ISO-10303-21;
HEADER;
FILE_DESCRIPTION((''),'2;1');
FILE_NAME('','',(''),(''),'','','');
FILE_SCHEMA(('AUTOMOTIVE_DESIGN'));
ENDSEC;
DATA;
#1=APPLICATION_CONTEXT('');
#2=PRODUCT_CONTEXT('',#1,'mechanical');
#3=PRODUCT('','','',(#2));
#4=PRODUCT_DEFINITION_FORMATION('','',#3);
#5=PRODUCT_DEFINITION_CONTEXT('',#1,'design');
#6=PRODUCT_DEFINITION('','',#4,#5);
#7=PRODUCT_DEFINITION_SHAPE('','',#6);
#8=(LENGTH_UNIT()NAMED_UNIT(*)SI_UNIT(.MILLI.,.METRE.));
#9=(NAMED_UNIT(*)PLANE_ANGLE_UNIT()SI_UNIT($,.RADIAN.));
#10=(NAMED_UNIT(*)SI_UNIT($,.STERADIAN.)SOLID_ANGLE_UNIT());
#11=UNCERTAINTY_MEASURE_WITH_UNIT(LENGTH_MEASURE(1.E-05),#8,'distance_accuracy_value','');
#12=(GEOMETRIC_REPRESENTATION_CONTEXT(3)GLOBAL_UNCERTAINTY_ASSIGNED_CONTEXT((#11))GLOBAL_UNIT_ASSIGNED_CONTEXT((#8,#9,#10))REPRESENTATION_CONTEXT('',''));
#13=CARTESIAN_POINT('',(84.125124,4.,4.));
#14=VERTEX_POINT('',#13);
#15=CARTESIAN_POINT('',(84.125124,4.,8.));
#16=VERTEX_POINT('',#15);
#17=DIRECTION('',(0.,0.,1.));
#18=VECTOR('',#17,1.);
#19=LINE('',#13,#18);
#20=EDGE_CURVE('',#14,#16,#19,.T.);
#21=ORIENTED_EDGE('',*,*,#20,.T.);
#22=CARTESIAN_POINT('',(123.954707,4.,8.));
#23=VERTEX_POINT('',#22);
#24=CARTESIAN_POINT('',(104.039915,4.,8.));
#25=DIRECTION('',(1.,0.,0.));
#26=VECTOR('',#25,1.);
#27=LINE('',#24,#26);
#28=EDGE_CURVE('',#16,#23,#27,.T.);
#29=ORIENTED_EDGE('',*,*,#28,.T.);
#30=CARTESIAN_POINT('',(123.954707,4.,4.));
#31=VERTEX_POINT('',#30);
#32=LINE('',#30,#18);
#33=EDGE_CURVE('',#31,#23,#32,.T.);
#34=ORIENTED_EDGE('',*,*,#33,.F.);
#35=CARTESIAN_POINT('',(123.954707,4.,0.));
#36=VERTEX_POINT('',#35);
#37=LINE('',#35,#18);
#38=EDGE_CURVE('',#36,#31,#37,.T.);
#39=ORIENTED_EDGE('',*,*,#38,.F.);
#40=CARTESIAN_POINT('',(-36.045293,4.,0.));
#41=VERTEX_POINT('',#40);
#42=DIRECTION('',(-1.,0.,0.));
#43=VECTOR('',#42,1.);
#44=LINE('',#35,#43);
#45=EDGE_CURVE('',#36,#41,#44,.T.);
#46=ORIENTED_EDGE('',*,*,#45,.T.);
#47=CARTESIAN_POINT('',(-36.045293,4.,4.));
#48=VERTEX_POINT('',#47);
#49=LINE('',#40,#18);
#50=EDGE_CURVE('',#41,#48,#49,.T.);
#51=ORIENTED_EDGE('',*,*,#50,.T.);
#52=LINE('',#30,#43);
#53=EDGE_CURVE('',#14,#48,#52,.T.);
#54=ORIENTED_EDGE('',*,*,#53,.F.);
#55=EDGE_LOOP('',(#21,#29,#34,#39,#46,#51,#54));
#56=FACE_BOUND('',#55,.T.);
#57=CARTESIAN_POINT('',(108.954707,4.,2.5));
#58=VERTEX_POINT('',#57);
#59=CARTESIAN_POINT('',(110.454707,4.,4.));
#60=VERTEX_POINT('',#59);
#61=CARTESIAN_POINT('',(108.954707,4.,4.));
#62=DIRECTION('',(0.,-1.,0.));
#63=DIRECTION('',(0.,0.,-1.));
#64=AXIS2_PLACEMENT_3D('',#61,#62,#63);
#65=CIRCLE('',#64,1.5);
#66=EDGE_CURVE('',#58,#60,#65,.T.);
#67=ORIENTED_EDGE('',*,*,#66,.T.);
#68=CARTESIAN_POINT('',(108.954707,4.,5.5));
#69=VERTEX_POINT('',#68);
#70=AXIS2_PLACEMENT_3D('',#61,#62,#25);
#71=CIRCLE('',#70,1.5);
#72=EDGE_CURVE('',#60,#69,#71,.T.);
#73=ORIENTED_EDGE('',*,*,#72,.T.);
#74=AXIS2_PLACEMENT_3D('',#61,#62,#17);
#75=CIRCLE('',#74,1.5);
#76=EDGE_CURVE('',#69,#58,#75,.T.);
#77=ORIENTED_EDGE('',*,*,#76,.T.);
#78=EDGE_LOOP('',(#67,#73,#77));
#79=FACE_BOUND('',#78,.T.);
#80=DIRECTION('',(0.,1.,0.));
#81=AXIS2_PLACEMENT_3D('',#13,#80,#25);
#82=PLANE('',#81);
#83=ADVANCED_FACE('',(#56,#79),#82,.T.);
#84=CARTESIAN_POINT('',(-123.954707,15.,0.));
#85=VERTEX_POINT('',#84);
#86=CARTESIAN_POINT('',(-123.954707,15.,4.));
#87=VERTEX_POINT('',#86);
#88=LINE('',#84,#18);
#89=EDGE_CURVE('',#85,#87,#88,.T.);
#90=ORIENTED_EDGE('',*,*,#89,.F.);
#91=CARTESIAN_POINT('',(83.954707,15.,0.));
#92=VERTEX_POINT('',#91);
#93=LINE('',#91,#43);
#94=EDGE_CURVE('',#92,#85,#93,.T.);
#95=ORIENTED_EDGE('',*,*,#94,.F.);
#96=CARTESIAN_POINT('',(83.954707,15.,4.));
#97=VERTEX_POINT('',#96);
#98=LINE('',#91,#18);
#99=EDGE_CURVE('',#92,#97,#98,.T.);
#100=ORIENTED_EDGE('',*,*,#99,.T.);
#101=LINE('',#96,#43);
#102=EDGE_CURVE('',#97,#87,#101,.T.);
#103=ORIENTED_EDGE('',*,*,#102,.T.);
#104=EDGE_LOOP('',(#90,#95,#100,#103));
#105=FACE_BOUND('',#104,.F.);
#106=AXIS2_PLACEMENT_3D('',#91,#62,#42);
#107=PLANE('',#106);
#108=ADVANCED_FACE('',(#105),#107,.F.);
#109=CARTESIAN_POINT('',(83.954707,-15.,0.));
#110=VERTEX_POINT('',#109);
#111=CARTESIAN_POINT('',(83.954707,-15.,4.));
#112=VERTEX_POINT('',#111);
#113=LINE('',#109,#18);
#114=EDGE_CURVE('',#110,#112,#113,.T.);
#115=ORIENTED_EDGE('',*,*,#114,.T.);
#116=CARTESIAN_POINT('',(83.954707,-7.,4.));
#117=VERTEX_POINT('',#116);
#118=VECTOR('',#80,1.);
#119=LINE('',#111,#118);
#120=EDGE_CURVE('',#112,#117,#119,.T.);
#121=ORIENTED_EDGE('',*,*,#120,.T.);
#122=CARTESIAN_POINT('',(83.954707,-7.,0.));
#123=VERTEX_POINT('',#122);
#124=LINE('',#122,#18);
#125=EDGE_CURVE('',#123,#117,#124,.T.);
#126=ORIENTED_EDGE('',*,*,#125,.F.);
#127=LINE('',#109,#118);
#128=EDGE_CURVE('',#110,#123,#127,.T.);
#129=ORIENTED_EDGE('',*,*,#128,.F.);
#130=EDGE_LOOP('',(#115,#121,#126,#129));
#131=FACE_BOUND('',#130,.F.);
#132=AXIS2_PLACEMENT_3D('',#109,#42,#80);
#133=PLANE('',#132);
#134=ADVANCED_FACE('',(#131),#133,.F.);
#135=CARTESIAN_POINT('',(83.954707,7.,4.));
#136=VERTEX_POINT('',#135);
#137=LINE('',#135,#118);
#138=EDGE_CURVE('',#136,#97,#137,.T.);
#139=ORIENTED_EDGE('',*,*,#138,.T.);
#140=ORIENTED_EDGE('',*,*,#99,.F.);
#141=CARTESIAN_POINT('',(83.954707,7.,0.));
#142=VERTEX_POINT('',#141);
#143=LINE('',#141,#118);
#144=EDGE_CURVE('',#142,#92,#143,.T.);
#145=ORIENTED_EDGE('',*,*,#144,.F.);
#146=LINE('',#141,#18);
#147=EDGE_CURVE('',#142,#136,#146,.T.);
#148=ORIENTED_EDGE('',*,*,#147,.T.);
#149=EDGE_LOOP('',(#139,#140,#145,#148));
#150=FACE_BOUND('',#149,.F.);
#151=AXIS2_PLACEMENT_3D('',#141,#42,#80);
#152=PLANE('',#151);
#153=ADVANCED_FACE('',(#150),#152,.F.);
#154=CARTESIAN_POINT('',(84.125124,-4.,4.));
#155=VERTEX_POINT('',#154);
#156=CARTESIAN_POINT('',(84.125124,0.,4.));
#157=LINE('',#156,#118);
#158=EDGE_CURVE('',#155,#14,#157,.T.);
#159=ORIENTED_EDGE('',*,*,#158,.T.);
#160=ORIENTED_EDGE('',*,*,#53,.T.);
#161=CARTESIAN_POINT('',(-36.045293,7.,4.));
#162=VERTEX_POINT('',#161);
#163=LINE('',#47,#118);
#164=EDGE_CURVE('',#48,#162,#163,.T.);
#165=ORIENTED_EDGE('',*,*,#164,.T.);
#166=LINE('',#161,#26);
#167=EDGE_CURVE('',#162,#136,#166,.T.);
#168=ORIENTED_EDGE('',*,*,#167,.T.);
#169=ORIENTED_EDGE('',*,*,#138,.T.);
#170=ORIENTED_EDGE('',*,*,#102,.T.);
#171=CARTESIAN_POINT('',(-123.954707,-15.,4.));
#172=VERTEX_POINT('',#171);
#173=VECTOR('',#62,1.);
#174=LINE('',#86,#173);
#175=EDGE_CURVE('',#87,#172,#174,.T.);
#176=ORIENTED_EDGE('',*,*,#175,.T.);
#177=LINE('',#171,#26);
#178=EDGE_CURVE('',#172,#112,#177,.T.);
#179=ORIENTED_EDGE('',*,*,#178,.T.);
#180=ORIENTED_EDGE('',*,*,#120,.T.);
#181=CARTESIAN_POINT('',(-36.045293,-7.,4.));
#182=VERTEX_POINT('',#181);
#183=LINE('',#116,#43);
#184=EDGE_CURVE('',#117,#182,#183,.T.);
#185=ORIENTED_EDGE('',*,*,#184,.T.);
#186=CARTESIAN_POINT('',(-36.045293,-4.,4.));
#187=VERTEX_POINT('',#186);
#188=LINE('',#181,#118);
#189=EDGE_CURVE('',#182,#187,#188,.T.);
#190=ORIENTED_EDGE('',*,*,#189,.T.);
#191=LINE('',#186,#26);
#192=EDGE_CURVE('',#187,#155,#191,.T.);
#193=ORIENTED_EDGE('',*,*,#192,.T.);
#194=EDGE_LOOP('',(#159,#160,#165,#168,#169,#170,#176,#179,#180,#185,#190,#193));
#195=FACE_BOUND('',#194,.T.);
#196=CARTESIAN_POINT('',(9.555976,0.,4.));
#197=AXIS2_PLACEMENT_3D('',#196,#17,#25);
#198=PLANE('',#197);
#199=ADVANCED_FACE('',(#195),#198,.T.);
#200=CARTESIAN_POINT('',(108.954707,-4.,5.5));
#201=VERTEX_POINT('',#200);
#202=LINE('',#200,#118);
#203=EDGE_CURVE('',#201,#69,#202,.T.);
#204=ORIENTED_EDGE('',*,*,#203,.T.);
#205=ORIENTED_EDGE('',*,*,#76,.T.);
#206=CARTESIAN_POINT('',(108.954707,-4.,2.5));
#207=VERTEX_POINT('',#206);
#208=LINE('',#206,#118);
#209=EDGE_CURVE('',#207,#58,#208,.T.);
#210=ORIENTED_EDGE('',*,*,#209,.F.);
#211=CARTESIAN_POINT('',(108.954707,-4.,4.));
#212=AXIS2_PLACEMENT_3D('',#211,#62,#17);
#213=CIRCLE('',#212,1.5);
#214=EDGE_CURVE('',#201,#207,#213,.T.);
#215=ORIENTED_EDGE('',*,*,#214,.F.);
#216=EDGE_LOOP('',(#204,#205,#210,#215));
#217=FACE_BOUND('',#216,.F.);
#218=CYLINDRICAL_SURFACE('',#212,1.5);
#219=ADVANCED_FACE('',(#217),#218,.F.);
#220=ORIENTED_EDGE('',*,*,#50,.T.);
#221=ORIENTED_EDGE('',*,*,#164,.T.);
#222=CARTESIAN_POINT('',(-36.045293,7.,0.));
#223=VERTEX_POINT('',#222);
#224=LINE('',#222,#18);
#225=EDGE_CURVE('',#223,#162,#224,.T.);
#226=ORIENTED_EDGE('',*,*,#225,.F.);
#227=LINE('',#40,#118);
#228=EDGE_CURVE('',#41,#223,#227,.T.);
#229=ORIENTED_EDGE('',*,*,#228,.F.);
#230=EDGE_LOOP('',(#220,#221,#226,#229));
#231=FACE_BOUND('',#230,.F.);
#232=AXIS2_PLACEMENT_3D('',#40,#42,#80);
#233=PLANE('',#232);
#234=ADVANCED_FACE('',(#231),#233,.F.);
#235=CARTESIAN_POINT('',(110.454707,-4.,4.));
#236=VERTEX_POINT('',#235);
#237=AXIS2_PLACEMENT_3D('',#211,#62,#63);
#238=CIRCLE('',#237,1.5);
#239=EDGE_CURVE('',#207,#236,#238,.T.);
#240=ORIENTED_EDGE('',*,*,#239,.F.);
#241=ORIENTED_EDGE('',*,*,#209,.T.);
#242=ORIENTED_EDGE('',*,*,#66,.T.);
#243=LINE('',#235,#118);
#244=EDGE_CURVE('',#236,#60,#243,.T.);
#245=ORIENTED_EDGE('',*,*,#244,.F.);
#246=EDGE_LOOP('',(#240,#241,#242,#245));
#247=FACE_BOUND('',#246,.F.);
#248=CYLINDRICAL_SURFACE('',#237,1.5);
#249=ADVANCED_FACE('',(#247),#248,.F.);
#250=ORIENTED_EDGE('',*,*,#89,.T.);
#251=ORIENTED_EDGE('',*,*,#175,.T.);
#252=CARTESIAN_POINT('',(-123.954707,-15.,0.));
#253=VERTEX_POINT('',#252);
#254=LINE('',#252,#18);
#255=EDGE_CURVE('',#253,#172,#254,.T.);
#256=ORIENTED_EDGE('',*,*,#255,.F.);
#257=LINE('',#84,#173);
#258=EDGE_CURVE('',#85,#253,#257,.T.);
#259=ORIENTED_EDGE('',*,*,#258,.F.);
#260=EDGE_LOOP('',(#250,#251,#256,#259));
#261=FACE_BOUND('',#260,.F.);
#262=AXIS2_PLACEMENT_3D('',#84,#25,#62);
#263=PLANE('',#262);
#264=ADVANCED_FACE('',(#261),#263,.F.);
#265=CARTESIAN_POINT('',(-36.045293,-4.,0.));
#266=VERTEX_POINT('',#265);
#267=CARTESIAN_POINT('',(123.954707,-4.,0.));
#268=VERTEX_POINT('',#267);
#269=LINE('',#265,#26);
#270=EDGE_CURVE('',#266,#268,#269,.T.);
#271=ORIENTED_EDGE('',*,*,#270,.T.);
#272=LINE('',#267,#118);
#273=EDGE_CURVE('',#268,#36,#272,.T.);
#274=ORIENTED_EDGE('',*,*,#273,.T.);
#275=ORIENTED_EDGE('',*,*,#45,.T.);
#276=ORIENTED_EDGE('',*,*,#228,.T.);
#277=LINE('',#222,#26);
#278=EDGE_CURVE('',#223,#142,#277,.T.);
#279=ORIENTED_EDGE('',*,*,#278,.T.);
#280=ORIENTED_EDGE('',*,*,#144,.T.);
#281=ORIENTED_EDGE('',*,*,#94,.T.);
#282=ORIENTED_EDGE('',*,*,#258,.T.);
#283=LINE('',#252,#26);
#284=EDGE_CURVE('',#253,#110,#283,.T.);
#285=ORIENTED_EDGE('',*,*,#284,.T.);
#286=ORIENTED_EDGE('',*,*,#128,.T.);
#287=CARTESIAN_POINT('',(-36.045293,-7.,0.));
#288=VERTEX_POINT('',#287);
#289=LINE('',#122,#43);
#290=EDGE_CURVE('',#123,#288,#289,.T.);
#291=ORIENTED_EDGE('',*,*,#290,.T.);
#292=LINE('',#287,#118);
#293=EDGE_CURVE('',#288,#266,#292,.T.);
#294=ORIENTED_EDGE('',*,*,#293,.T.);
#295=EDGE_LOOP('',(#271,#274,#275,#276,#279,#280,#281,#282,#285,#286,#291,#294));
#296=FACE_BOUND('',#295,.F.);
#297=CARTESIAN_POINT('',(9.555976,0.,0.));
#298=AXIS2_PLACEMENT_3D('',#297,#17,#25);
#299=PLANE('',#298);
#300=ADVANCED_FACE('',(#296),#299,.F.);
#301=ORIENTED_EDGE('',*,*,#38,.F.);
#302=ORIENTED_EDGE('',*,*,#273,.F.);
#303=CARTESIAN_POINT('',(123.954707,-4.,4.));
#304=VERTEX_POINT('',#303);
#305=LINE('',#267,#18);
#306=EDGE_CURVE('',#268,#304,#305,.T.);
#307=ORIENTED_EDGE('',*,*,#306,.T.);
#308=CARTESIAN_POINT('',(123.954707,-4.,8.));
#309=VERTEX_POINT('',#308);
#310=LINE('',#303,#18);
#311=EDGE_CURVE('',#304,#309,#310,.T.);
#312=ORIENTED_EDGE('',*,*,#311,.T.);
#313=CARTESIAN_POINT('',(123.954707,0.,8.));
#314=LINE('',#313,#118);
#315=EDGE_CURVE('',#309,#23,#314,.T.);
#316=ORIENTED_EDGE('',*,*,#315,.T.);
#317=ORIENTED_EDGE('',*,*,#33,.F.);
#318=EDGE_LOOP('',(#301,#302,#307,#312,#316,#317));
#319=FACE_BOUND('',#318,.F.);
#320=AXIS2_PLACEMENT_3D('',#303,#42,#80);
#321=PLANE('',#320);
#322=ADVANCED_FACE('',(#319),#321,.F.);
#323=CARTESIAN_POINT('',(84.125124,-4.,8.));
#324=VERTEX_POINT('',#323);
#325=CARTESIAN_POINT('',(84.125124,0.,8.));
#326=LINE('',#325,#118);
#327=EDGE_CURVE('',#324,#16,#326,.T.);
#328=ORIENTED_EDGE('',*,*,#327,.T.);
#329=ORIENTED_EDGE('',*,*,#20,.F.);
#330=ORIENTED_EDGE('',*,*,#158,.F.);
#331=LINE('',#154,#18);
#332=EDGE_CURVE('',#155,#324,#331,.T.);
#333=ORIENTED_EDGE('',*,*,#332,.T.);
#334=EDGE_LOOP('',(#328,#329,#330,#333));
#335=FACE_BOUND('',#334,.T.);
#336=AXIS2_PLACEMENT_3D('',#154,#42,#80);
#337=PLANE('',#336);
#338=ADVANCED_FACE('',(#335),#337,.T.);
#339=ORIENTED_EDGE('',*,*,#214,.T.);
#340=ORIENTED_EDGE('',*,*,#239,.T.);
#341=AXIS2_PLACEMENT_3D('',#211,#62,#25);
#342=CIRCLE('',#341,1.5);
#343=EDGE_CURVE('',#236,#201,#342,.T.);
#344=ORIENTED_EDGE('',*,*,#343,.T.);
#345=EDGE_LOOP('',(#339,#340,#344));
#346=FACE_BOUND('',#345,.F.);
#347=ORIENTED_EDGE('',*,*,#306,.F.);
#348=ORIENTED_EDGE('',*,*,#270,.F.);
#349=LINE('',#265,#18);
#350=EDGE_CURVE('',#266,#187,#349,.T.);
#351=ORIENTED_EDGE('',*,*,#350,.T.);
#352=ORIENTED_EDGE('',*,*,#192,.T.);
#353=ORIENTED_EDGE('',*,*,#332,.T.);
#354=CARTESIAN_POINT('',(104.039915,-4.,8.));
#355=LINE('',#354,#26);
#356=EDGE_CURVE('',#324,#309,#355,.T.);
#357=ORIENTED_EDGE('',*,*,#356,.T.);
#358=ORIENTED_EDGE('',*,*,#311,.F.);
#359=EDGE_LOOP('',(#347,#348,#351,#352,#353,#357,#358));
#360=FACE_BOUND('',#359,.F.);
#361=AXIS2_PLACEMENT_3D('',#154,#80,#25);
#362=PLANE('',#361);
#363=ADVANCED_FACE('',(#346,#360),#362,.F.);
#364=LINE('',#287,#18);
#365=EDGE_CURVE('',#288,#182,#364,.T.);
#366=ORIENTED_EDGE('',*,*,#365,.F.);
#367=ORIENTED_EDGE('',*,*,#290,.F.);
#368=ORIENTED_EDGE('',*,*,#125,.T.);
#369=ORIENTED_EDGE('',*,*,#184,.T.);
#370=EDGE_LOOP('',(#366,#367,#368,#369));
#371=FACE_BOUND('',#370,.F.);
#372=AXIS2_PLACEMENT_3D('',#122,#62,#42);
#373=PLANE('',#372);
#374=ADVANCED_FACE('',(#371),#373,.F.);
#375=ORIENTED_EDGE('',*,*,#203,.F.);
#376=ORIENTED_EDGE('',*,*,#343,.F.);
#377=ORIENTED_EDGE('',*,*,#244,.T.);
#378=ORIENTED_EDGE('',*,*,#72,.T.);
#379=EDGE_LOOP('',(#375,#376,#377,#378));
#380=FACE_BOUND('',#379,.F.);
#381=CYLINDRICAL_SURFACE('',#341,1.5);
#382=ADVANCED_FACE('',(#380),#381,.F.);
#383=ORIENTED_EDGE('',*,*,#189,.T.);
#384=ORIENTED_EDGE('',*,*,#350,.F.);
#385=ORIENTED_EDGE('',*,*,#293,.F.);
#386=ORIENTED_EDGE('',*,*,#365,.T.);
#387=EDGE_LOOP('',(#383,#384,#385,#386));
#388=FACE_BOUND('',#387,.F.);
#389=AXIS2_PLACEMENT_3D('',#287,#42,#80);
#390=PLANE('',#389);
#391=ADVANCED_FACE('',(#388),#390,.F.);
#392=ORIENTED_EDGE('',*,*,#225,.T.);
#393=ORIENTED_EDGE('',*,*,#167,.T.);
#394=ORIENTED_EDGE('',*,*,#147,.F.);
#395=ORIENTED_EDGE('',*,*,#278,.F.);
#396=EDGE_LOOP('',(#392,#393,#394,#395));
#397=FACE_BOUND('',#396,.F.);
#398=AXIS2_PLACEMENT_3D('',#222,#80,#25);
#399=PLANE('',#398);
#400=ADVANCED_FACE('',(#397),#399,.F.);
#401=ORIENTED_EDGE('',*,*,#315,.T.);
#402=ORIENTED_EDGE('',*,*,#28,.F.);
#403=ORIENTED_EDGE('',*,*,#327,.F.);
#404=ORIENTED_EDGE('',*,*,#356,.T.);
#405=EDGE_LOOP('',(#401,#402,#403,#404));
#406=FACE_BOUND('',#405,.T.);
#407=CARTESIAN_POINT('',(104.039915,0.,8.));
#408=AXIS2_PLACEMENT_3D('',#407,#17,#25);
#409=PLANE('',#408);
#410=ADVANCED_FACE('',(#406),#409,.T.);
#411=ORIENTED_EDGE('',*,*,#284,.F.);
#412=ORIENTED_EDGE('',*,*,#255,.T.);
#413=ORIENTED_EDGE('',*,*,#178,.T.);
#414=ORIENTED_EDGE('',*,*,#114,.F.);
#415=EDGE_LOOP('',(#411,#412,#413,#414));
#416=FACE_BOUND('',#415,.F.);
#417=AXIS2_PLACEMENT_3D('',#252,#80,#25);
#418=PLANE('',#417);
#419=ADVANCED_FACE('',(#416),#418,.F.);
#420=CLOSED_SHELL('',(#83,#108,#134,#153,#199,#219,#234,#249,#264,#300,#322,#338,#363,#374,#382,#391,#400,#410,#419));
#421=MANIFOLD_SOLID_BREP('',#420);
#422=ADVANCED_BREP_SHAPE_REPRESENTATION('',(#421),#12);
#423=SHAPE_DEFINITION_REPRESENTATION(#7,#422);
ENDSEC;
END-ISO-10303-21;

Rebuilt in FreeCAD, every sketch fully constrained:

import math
import FreeCAD as App
import Part
import Sketcher

doc = App.newDocument("Part")
body = doc.addObject("PartDesign::Body", "Body")

# Sketch on XY plane
sketch1 = body.newObject("Sketcher::SketchObject", "Sketch")
sketch1.AttachmentSupport = (doc.getObject("XY_Plane"), [""])
sketch1.MapMode = "FlatFace"
sketch1.addGeometry(Part.LineSegment(App.Vector(-123.954707, -15, 0), App.Vector(83.954707, -15, 0)), False)
sketch1.addGeometry(Part.LineSegment(App.Vector(83.954707, -15, 0), App.Vector(83.954707, -7, 0)), False)
sketch1.addGeometry(Part.LineSegment(App.Vector(83.954707, -7, 0), App.Vector(-36.045293, -7, 0)), False)
sketch1.addGeometry(Part.LineSegment(App.Vector(-36.045293, -7, 0), App.Vector(-36.045293, -4, 0)), False)
sketch1.addGeometry(Part.LineSegment(App.Vector(-36.045293, -4, 0), App.Vector(123.954707, -4, 0)), False)
sketch1.addGeometry(Part.LineSegment(App.Vector(123.954707, -4, 0), App.Vector(123.954707, 4, 0)), False)
sketch1.addGeometry(Part.LineSegment(App.Vector(123.954707, 4, 0), App.Vector(-36.045293, 4, 0)), False)
sketch1.addGeometry(Part.LineSegment(App.Vector(-36.045293, 4, 0), App.Vector(-36.045293, 7, 0)), False)
sketch1.addGeometry(Part.LineSegment(App.Vector(-36.045293, 7, 0), App.Vector(83.954707, 7, 0)), False)
sketch1.addGeometry(Part.LineSegment(App.Vector(83.954707, 7, 0), App.Vector(83.954707, 15, 0)), False)
sketch1.addGeometry(Part.LineSegment(App.Vector(83.954707, 15, 0), App.Vector(-123.954707, 15, 0)), False)
sketch1.addGeometry(Part.LineSegment(App.Vector(-123.954707, 15, 0), App.Vector(-123.954707, -15, 0)), False)
sketch1.addConstraint(Sketcher.Constraint("Coincident", 0, 2, 1, 1))
sketch1.addConstraint(Sketcher.Constraint("Coincident", 1, 2, 2, 1))
sketch1.addConstraint(Sketcher.Constraint("Coincident", 2, 2, 3, 1))
sketch1.addConstraint(Sketcher.Constraint("Coincident", 3, 2, 4, 1))
sketch1.addConstraint(Sketcher.Constraint("Coincident", 4, 2, 5, 1))
sketch1.addConstraint(Sketcher.Constraint("Coincident", 5, 2, 6, 1))
sketch1.addConstraint(Sketcher.Constraint("Coincident", 6, 2, 7, 1))
sketch1.addConstraint(Sketcher.Constraint("Coincident", 7, 2, 8, 1))
sketch1.addConstraint(Sketcher.Constraint("Coincident", 8, 2, 9, 1))
sketch1.addConstraint(Sketcher.Constraint("Coincident", 9, 2, 10, 1))
sketch1.addConstraint(Sketcher.Constraint("Coincident", 10, 2, 11, 1))
sketch1.addConstraint(Sketcher.Constraint("Coincident", 11, 2, 0, 1))
sketch1.addConstraint(Sketcher.Constraint("Horizontal", 0))
sketch1.addConstraint(Sketcher.Constraint("Vertical", 1))
sketch1.addConstraint(Sketcher.Constraint("Horizontal", 2))
sketch1.addConstraint(Sketcher.Constraint("Vertical", 3))
sketch1.addConstraint(Sketcher.Constraint("Horizontal", 4))
sketch1.addConstraint(Sketcher.Constraint("Vertical", 5))
sketch1.addConstraint(Sketcher.Constraint("Horizontal", 6))
sketch1.addConstraint(Sketcher.Constraint("Vertical", 7))
sketch1.addConstraint(Sketcher.Constraint("Horizontal", 8))
sketch1.addConstraint(Sketcher.Constraint("Vertical", 9))
sketch1.addConstraint(Sketcher.Constraint("Horizontal", 10))
sketch1.addConstraint(Sketcher.Constraint("Vertical", 11))
sketch1.addConstraint(Sketcher.Constraint("Symmetric", 3, 2, 6, 2, -1))
sketch1.addConstraint(Sketcher.Constraint("Symmetric", 1, 2, 8, 2, -1))
sketch1.addConstraint(Sketcher.Constraint("Equal", 1, 5))
sketch1.addConstraint(Sketcher.Constraint("Equal", 5, 9))
sketch1.addConstraint(Sketcher.Constraint("DistanceX", 2, 2, 2, 1, 120.0))
sketch1.addConstraint(Sketcher.Constraint("DistanceX", 4, 1, 4, 2, 160.0))
sketch1.addConstraint(Sketcher.Constraint("DistanceY", 1, 1, 1, 2, 8.0))
sketch1.addConstraint(Sketcher.Constraint("DistanceY", 3, 1, 3, 2, 3.0))
sketch1.addConstraint(Sketcher.Constraint("DistanceX", 0, 1, 0, 2, 207.909414))
sketch1.addConstraint(Sketcher.Constraint("DistanceX", -1, 1, 0, 2, 83.954707))
pad1 = body.newObject("PartDesign::Pad", "Pad")
pad1.Profile = sketch1
pad1.Length = 4

# Sketch on XY plane
sketch2 = body.newObject("Sketcher::SketchObject", "Sketch001")
sketch2.AttachmentSupport = (doc.getObject("XY_Plane"), [""])
sketch2.MapMode = "FlatFace"
sketch2.AttachmentOffset = App.Placement(App.Vector(0, 0, 4), App.Rotation())
sketch2.addGeometry(Part.LineSegment(App.Vector(84.125124, 4, 0), App.Vector(84.125124, -4, 0)), False)
sketch2.addGeometry(Part.LineSegment(App.Vector(84.125124, -4, 0), App.Vector(123.954707, -4, 0)), False)
sketch2.addGeometry(Part.LineSegment(App.Vector(123.954707, -4, 0), App.Vector(123.954707, 4, 0)), False)
sketch2.addGeometry(Part.LineSegment(App.Vector(123.954707, 4, 0), App.Vector(84.125124, 4, 0)), False)
sketch2.addConstraint(Sketcher.Constraint("Coincident", 0, 2, 1, 1))
sketch2.addConstraint(Sketcher.Constraint("Coincident", 1, 2, 2, 1))
sketch2.addConstraint(Sketcher.Constraint("Coincident", 2, 2, 3, 1))
sketch2.addConstraint(Sketcher.Constraint("Coincident", 3, 2, 0, 1))
sketch2.addConstraint(Sketcher.Constraint("Vertical", 0))
sketch2.addConstraint(Sketcher.Constraint("Horizontal", 1))
sketch2.addConstraint(Sketcher.Constraint("Vertical", 2))
sketch2.addConstraint(Sketcher.Constraint("Horizontal", 3))
sketch2.addConstraint(Sketcher.Constraint("DistanceY", 0, 2, 0, 1, 8.0))
sketch2.addConstraint(Sketcher.Constraint("DistanceY", 0, 2, -1, 1, 4.0))
sketch2.addConstraint(Sketcher.Constraint("DistanceX", 1, 1, 1, 2, 39.829583))
sketch2.addConstraint(Sketcher.Constraint("DistanceX", -1, 1, 0, 2, 84.125124))
pad2 = body.newObject("PartDesign::Pad", "Pad001")
pad2.Profile = sketch2
pad2.Length = 4

# Sketch on XZ plane
sketch3 = body.newObject("Sketcher::SketchObject", "Sketch002")
sketch3.AttachmentSupport = (doc.getObject("XZ_Plane"), [""])
sketch3.MapMode = "FlatFace"
sketch3.AttachmentOffset = App.Placement(App.Vector(0, 0, 4), App.Rotation())
sketch3.addGeometry(Part.ArcOfCircle(Part.Circle(App.Vector(108.954707, 4, 0), App.Vector(0, 0, 1), 1.5), math.radians(0), math.radians(90)), False)
sketch3.addGeometry(Part.ArcOfCircle(Part.Circle(App.Vector(108.954707, 4, 0), App.Vector(0, 0, 1), 1.5), math.radians(90), math.radians(270)), False)
sketch3.addGeometry(Part.ArcOfCircle(Part.Circle(App.Vector(108.954707, 4, 0), App.Vector(0, 0, 1), 1.5), math.radians(-90), math.radians(0)), False)
sketch3.addConstraint(Sketcher.Constraint("Tangent", 0, 2, 1, 1))
sketch3.addConstraint(Sketcher.Constraint("Tangent", 1, 2, 2, 1))
sketch3.addConstraint(Sketcher.Constraint("Tangent", 2, 2, 0, 1))
sketch3.addConstraint(Sketcher.Constraint("Horizontal", 1, 3, 2, 2))
sketch3.addConstraint(Sketcher.Constraint("Vertical", 2, 3, 0, 2))
sketch3.addConstraint(Sketcher.Constraint("Vertical", 0, 2, 1, 2))
sketch3.addConstraint(Sketcher.Constraint("Radius", 0, 1.5))
sketch3.addConstraint(Sketcher.Constraint("DistanceY", -1, 1, 0, 3, 4.0))
sketch3.addConstraint(Sketcher.Constraint("DistanceX", -1, 1, 0, 3, 108.954707))
pocket1 = body.newObject("PartDesign::Pocket", "Pocket")
pocket1.Profile = sketch3
pocket1.Length = 58.8

doc.recompute()
